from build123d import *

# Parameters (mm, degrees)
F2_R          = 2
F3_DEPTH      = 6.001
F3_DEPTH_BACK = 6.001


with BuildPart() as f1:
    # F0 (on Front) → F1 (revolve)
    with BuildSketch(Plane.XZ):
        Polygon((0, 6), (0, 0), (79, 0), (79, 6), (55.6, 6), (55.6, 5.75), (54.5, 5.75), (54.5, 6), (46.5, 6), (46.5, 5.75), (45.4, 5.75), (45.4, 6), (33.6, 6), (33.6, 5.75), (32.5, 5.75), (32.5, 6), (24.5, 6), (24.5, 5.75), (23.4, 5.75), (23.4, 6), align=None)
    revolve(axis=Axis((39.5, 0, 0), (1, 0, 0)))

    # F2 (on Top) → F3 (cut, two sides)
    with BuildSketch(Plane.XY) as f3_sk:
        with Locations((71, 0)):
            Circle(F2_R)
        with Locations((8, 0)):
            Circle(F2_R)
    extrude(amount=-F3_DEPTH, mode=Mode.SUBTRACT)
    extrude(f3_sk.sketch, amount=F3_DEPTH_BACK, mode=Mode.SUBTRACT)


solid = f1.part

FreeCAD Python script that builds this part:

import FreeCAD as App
import Part
import Sketcher
from FreeCAD import Vector
Q = App.Units.Quantity

doc = App.newDocument("Part")
body = doc.addObject("PartDesign::Body", "Body")

sketch1 = body.newObject("Sketcher::SketchObject", "Sketch")
sketch1.AttachmentSupport = (doc.getObject("XZ_Plane"), [""])
sketch1.MapMode = "FlatFace"
sketch1.addGeometry([
    Part.LineSegment(Vector(0, 6, 0), Vector(0, 0, 0)),
    Part.LineSegment(Vector(0, 0, 0), Vector(79, 0, 0)),
    Part.LineSegment(Vector(79, 0, 0), Vector(79, 6, 0)),
    Part.LineSegment(Vector(79, 6, 0), Vector(55.6, 6, 0)),
    Part.LineSegment(Vector(55.6, 6, 0), Vector(55.6, 5.75, 0)),
    Part.LineSegment(Vector(55.6, 5.75, 0), Vector(54.5, 5.75, 0)),
    Part.LineSegment(Vector(54.5, 5.75, 0), Vector(54.5, 6, 0)),
    Part.LineSegment(Vector(54.5, 6, 0), Vector(46.5, 6, 0)),
    Part.LineSegment(Vector(46.5, 6, 0), Vector(46.5, 5.75, 0)),
    Part.LineSegment(Vector(46.5, 5.75, 0), Vector(45.4, 5.75, 0)),
    Part.LineSegment(Vector(45.4, 5.75, 0), Vector(45.4, 6, 0)),
    Part.LineSegment(Vector(45.4, 6, 0), Vector(33.6, 6, 0)),
    Part.LineSegment(Vector(33.6, 6, 0), Vector(33.6, 5.75, 0)),
    Part.LineSegment(Vector(33.6, 5.75, 0), Vector(32.5, 5.75, 0)),
    Part.LineSegment(Vector(32.5, 5.75, 0), Vector(32.5, 6, 0)),
    Part.LineSegment(Vector(32.5, 6, 0), Vector(24.5, 6, 0)),
    Part.LineSegment(Vector(24.5, 6, 0), Vector(24.5, 5.75, 0)),
    Part.LineSegment(Vector(24.5, 5.75, 0), Vector(23.4, 5.75, 0)),
    Part.LineSegment(Vector(23.4, 5.75, 0), Vector(23.4, 6, 0)),
    Part.LineSegment(Vector(23.4, 6, 0), Vector(0, 6, 0)),
], False)
sketch1.addConstraint([
    Sketcher.Constraint("Coincident", 0, 2, 1, 1),
    Sketcher.Constraint("Coincident", 1, 2, 2, 1),
    Sketcher.Constraint("Coincident", 2, 2, 3, 1),
    Sketcher.Constraint("Coincident", 3, 2, 4, 1),
    Sketcher.Constraint("Coincident", 4, 2, 5, 1),
    Sketcher.Constraint("Coincident", 5, 2, 6, 1),
    Sketcher.Constraint("Coincident", 6, 2, 7, 1),
    Sketcher.Constraint("Coincident", 7, 2, 8, 1),
    Sketcher.Constraint("Coincident", 8, 2, 9, 1),
    Sketcher.Constraint("Coincident", 9, 2, 10, 1),
    Sketcher.Constraint("Coincident", 10, 2, 11, 1),
    Sketcher.Constraint("Coincident", 11, 2, 12, 1),
    Sketcher.Constraint("Coincident", 12, 2, 13, 1),
    Sketcher.Constraint("Coincident", 13, 2, 14, 1),
    Sketcher.Constraint("Coincident", 14, 2, 15, 1),
    Sketcher.Constraint("Coincident", 15, 2, 16, 1),
    Sketcher.Constraint("Coincident", 16, 2, 17, 1),
    Sketcher.Constraint("Coincident", 17, 2, 18, 1),
    Sketcher.Constraint("Coincident", 18, 2, 19, 1),
    Sketcher.Constraint("Coincident", 19, 2, 0, 1),
    Sketcher.Constraint("Vertical", 0),
    Sketcher.Constraint("Horizontal", 1),
    Sketcher.Constraint("Vertical", 2),
    Sketcher.Constraint("Horizontal", 3),
    Sketcher.Constraint("Vertical", 4),
    Sketcher.Constraint("Horizontal", 5),
    Sketcher.Constraint("Vertical", 6),
    Sketcher.Constraint("Horizontal", 7),
    Sketcher.Constraint("Vertical", 8),
    Sketcher.Constraint("Horizontal", 9),
    Sketcher.Constraint("Vertical", 10),
    Sketcher.Constraint("Horizontal", 11),
    Sketcher.Constraint("Vertical", 12),
    Sketcher.Constraint("Horizontal", 13),
    Sketcher.Constraint("Vertical", 14),
    Sketcher.Constraint("Horizontal", 15),
    Sketcher.Constraint("Vertical", 16),
    Sketcher.Constraint("Horizontal", 17),
    Sketcher.Constraint("Vertical", 18),
    Sketcher.Constraint("Horizontal", 19),
    Sketcher.Constraint("Coincident", 0, 2, -1, 1),
    Sketcher.Constraint("Horizontal", 3, 2, 6, 2),
    Sketcher.Constraint("Horizontal", 5, 2, 8, 2),
    Sketcher.Constraint("Horizontal", 7, 2, 10, 2),
    Sketcher.Constraint("Horizontal", 9, 2, 12, 2),
    Sketcher.Constraint("Horizontal", 11, 2, 14, 2),
    Sketcher.Constraint("Horizontal", 13, 2, 16, 2),
    Sketcher.Constraint("Horizontal", 15, 2, 18, 2),
    Sketcher.Constraint("Equal", 5, 9),
    Sketcher.Constraint("Equal", 9, 13),
    Sketcher.Constraint("Equal", 7, 15),
    Sketcher.Constraint("Equal", 13, 17),
    Sketcher.Constraint("Equal", 3, 19),
    Sketcher.Constraint("DistanceX", 1, 1, 1, 2, Q("79 mm")),
    Sketcher.Constraint("DistanceX", 7, 2, 7, 1, Q("8 mm")),
    Sketcher.Constraint("DistanceY", 0, 2, 0, 1, Q("6 mm")),
    Sketcher.Constraint("DistanceX", 3, 2, 3, 1, Q("23.4 mm")),
    Sketcher.Constraint("DistanceX", 5, 2, 5, 1, Q("1.1 mm")),
    Sketcher.Constraint("DistanceY", 4, 2, 4, 1, Q("0.25 mm")),
])
revolution = body.newObject("PartDesign::Revolution", "Revolution")
revolution.Profile = sketch1
revolution.ReferenceAxis = (sketch1, ["H_Axis"])
revolution.Angle = 360

sketch2 = body.newObject("Sketcher::SketchObject", "Sketch001")
sketch2.AttachmentSupport = (doc.getObject("XY_Plane"), [""])
sketch2.MapMode = "FlatFace"
sketch2.addGeometry([
    Part.Circle(Vector(71, 0, 0), Vector(0, 0, 1), 2),
    Part.Circle(Vector(8, 0, 0), Vector(0, 0, 1), 2),
], False)
sketch2.addConstraint([
    Sketcher.Constraint("Equal", 0, 1),
    Sketcher.Constraint("PointOnObject", 0, 3, -1),
    Sketcher.Constraint("PointOnObject", 1, 3, -1),
    Sketcher.Constraint("Diameter", 0, Q("4 mm")),
    Sketcher.Constraint("DistanceX", -1, 1, 0, 3, Q("71 mm")),
    Sketcher.Constraint("DistanceX", -1, 1, 1, 3, Q("8 mm")),
])
pocket1 = body.newObject("PartDesign::Pocket", "Pocket")
pocket1.Profile = sketch2
pocket1.Type = "ThroughAll"
pocket1.Midplane = True

doc.recompute()
